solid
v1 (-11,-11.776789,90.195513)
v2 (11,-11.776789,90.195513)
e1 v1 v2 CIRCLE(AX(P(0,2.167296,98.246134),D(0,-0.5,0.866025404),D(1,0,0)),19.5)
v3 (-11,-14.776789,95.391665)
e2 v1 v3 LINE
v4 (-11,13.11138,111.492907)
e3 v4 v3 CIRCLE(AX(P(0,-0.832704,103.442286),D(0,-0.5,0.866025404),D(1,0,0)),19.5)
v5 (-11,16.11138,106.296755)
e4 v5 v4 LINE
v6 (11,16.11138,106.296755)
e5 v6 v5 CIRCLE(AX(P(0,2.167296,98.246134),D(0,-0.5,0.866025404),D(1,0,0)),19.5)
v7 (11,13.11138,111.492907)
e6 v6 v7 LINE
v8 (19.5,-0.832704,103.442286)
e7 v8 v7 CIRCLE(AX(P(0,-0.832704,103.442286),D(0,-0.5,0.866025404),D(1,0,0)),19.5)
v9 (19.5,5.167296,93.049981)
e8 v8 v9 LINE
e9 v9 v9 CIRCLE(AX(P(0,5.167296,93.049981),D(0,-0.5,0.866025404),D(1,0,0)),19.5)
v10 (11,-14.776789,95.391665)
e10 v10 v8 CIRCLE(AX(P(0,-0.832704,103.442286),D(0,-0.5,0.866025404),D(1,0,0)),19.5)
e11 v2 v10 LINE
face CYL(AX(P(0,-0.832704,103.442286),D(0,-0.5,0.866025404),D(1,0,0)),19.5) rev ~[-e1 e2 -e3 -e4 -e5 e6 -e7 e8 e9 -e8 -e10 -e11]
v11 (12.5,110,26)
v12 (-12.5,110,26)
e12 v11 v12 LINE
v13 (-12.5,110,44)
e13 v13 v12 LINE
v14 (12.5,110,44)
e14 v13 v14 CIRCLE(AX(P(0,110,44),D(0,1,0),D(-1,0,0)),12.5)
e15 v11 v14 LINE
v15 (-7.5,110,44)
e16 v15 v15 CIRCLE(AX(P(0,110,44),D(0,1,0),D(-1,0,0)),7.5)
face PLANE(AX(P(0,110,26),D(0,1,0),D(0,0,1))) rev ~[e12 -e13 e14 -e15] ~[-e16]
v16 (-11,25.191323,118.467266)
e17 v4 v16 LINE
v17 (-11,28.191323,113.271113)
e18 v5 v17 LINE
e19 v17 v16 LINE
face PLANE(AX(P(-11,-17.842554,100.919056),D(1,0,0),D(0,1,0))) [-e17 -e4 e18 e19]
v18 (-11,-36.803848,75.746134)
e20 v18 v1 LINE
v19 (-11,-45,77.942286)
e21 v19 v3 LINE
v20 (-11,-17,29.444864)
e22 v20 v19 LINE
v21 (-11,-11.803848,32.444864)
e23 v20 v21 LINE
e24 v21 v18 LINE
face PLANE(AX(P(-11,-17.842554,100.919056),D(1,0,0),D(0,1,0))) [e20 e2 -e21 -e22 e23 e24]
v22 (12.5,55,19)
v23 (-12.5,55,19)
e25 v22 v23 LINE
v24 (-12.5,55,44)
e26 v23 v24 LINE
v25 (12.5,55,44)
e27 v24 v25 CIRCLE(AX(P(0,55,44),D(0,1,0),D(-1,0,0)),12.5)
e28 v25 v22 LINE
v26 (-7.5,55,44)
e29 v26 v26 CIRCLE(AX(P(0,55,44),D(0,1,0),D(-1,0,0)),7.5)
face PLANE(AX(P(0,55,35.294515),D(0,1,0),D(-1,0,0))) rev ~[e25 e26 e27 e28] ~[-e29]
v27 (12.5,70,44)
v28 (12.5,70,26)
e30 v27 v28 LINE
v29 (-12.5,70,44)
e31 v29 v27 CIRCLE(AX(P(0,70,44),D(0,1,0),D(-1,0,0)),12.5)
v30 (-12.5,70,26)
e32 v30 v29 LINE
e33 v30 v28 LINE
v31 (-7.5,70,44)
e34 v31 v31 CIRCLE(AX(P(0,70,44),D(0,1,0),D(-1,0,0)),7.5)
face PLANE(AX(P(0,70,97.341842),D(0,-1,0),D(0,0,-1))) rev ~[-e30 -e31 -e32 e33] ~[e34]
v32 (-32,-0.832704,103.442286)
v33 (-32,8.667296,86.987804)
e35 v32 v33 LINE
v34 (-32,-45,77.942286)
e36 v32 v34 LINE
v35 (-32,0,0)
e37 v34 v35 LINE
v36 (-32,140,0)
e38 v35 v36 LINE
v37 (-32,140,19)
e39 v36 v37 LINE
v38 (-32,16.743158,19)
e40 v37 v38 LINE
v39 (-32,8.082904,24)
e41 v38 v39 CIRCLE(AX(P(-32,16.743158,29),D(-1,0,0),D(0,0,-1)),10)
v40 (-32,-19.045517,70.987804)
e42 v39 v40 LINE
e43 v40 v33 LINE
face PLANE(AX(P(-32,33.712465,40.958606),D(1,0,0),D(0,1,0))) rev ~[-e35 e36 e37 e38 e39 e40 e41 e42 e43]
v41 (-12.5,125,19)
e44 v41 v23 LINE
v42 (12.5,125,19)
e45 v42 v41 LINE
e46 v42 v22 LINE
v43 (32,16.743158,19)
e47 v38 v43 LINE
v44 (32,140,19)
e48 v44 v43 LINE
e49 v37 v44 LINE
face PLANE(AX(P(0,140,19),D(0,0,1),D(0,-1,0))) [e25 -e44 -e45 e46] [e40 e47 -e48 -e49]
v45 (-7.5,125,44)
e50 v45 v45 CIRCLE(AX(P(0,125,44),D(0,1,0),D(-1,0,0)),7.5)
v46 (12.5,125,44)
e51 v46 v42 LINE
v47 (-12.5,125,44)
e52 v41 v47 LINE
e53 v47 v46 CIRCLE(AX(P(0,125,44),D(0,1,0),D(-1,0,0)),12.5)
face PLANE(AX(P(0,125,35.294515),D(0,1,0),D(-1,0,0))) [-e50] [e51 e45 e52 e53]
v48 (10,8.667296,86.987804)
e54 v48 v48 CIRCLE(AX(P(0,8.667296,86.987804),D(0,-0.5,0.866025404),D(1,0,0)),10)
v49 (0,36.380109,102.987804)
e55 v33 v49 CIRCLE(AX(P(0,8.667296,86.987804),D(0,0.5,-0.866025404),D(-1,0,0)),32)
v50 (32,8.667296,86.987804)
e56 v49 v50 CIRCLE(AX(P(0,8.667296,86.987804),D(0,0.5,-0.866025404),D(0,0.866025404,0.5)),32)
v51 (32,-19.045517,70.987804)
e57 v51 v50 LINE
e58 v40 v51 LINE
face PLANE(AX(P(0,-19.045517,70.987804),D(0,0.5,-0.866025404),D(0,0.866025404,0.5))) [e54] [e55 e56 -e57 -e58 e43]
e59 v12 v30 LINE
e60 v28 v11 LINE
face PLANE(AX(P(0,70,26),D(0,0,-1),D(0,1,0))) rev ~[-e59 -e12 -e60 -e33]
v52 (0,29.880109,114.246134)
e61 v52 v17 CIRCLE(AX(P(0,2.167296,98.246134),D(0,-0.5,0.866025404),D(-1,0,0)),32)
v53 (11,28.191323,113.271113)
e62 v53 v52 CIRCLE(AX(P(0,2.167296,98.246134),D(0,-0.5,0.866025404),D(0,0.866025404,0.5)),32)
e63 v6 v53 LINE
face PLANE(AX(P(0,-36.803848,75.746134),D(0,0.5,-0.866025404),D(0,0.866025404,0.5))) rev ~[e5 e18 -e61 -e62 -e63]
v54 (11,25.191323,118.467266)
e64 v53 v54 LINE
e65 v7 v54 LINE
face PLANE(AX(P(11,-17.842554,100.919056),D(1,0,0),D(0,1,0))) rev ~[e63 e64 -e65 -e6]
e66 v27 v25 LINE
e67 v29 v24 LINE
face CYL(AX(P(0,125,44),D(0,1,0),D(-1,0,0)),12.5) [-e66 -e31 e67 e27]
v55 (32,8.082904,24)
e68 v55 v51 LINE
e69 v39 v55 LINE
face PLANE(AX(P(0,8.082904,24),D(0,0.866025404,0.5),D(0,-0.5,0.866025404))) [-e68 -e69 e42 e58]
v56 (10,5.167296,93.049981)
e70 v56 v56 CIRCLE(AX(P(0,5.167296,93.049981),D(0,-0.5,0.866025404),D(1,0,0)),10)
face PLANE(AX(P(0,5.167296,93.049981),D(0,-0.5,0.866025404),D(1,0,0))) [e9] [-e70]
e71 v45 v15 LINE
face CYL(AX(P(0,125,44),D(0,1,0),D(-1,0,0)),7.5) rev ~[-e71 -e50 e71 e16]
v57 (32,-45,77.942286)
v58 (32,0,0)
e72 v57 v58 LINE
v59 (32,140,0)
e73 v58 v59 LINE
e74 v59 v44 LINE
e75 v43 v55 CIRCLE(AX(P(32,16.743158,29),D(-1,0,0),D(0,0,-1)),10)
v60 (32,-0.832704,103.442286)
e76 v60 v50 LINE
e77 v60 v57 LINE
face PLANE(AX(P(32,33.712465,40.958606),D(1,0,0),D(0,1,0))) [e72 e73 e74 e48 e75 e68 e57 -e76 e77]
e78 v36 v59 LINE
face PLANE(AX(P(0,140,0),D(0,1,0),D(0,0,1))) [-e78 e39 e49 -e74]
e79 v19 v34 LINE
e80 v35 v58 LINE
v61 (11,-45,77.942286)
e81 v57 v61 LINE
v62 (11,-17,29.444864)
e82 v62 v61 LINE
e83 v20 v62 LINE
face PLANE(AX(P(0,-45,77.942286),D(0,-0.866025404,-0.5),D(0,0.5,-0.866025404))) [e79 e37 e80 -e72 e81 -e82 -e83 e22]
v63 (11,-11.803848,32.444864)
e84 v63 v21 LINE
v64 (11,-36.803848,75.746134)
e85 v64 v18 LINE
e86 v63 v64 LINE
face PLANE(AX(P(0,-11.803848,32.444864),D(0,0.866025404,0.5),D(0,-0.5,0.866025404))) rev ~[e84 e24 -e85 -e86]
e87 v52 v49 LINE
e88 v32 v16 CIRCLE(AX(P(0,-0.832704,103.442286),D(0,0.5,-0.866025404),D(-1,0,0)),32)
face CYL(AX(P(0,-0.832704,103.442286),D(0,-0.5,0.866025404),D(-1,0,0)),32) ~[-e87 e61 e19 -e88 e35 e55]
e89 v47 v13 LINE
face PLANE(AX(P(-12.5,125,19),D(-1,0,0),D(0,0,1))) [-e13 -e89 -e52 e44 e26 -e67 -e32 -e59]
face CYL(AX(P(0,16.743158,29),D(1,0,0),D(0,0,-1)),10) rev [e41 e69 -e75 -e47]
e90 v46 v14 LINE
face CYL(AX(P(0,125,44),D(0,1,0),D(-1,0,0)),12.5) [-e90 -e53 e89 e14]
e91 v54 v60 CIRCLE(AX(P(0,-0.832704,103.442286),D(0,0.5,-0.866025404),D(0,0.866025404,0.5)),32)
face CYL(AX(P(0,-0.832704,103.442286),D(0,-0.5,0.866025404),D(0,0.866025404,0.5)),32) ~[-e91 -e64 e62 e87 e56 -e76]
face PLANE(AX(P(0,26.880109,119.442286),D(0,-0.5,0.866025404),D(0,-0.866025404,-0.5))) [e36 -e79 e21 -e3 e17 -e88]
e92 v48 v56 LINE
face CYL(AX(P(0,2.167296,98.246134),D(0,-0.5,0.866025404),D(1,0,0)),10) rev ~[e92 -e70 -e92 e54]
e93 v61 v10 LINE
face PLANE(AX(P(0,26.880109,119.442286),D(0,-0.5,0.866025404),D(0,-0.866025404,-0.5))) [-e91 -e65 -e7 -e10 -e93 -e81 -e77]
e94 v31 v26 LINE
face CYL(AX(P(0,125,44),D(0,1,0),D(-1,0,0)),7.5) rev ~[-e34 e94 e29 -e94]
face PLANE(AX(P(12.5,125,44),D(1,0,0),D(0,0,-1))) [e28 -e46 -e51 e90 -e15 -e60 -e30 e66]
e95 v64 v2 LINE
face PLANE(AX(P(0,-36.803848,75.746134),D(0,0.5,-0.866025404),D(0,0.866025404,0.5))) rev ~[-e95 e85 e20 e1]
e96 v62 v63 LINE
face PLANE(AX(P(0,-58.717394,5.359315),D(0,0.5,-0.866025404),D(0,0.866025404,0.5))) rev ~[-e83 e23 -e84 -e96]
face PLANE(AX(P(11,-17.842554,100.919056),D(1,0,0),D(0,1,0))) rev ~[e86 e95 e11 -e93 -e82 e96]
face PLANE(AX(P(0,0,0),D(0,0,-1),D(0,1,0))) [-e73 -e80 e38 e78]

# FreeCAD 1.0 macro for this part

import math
import FreeCAD as App
import Part
import Sketcher
from FreeCAD import Vector
Q = App.Units.Quantity

doc = App.newDocument("Part")
params = doc.addObject("Spreadsheet::Sheet", "Params")
for row, (alias, value) in enumerate([
    ("sketch1_radius", "10 mm"),
    ("sketch1_width", "140 mm"),
    ("sketch1_height", "19 mm"),
    ("sketch1_length", "90 mm"),
    ("sketch1_length2", "64 mm"),
    ("pad1_length", "64 mm"),
    ("sketch2_radius", "32 mm"),
    ("pocket1_length", "19 mm"),
    ("sketch3_length", "50 mm"),
    ("pocket2_length", "22 mm"),
    ("sketch4_diameter", "20 mm"),
    ("pocket3_length", "50 mm"),
    ("sketch5_diameter", "39 mm"),
    ("pocket4_length", "12 mm"),
    ("sketch6_diameter", "15 mm"),
    ("sketch6_radius", "12.5 mm"),
    ("pad2_length", "70 mm"),
    ("sketch7_width", "40 mm"),
    ("pocket5_length", "64 mm"),
], start=1):
    params.set(f"A{row}", alias)
    params.set(f"B{row}", "=" + value)
    params.setAlias(f"B{row}", alias)

body = doc.addObject("PartDesign::Body", "Body")

# Sketch on YZ plane
sketch1 = body.newObject("Sketcher::SketchObject", "Sketch")
sketch1.AttachmentSupport = (doc.getObject("YZ_Plane"), [""])
sketch1.MapMode = "FlatFace"
sketch1.addGeometry([
    Part.LineSegment(Vector(-45, 78, 0), Vector(0, 0, 0)),  # 0
    Part.LineSegment(Vector(0, 0, 0), Vector(140, 0, 0)),  # 1
    Part.LineSegment(Vector(140, 0, 0), Vector(140, 19, 0)),  # 2
    Part.LineSegment(Vector(140, 19, 0), Vector(17, 19, 0)),  # 3
    Part.ArcOfCircle(Part.Circle(Vector(17, 29, 0), Vector(0, 0, 1), 10), math.radians(-150), math.radians(-90)),  # 4
    Part.LineSegment(Vector(8, 24, 0), Vector(-19, 71, 0)),  # 5
    Part.LineSegment(Vector(-19, 71, 0), Vector(36, 103, 0)),  # 6
    Part.LineSegment(Vector(36, 103, 0), Vector(27, 119, 0)),  # 7
    Part.LineSegment(Vector(27, 119, 0), Vector(-45, 78, 0)),  # 8
], False)
sketch1.addConstraint([
    Sketcher.Constraint("Coincident", 0, 2, 1, 1),
    Sketcher.Constraint("Coincident", 1, 2, 2, 1),
    Sketcher.Constraint("Coincident", 2, 2, 3, 1),
    Sketcher.Constraint("Tangent", 3, 2, 4, 2),
    Sketcher.Constraint("Tangent", 4, 1, 5, 1),
    Sketcher.Constraint("Coincident", 5, 2, 6, 1),
    Sketcher.Constraint("Coincident", 6, 2, 7, 1),
    Sketcher.Constraint("Coincident", 7, 2, 8, 1),
    Sketcher.Constraint("Coincident", 8, 2, 0, 1),
    Sketcher.Constraint("Horizontal", 1),
    Sketcher.Constraint("Vertical", 2),
    Sketcher.Constraint("Horizontal", 3),
    Sketcher.Constraint("Coincident", 0, 2, -1, 1),
    Sketcher.Constraint("Parallel", 0, 5),
    Sketcher.Constraint("Perpendicular", 5, 6),
    Sketcher.Constraint("Perpendicular", 6, 7),
    Sketcher.Constraint("Perpendicular", 7, 8),
    Sketcher.Constraint("Radius", 4, 10.0),
    Sketcher.Constraint("DistanceX", 1, 1, 1, 2, 140.0),
    Sketcher.Constraint("DistanceY", 2, 1, 2, 2, 19.0),
    Sketcher.Constraint("Angle", 0, Q("-60 deg")),
    Sketcher.Constraint("Distance", 0, 90.0),
    Sketcher.Constraint("Distance", 6, 64.0),
    Sketcher.Constraint("Distance", 7, 19.0),
    Sketcher.Constraint("Distance", 8, 83.0),
])
sketch1.setExpression("Constraints[17]", "Params.sketch1_radius")
sketch1.setExpression("Constraints[18]", "Params.sketch1_width")
sketch1.setExpression("Constraints[19]", "Params.sketch1_height")
sketch1.setExpression("Constraints[21]", "Params.sketch1_length")
sketch1.setExpression("Constraints[22]", "Params.sketch1_length2")
pad1 = body.newObject("PartDesign::Pad", "Pad")
pad1.Profile = sketch1
pad1.setExpression("Length", "Params.pad1_length")
pad1.Midplane = True

# Sketch on an angled plane
sketch2 = body.newObject("Sketcher::SketchObject", "Sketch001")
sketch2.Placement = App.Placement(Vector(0, -45, 77.942286), App.Rotation(Vector(1, 0, 0), Vector(0, 0.866025404, 0.5), Vector(0, -0.5, 0.866025404), "ZXY"))
sketch2.addGeometry([
    Part.ArcOfCircle(Part.Circle(Vector(0, 51, 0), Vector(0, 0, 1), 32), math.radians(0), math.radians(90)),  # 0
    Part.LineSegment(Vector(32, 51, 0), Vector(106, 51, 0)),  # 1
    Part.LineSegment(Vector(106, 51, 0), Vector(106, 125, 0)),  # 2
    Part.LineSegment(Vector(106, 125, 0), Vector(-106, 125, 0)),  # 3
    Part.LineSegment(Vector(-106, 125, 0), Vector(-106, 51, 0)),  # 4
    Part.LineSegment(Vector(-106, 51, 0), Vector(-32, 51, 0)),  # 5
    Part.ArcOfCircle(Part.Circle(Vector(0, 51, 0), Vector(0, 0, 1), 32), math.radians(90), math.radians(180)),  # 6
], False)
sketch2.addConstraint([
    Sketcher.Constraint("Coincident", 0, 1, 1, 1),
    Sketcher.Constraint("Coincident", 1, 2, 2, 1),
    Sketcher.Constraint("Coincident", 2, 2, 3, 1),
    Sketcher.Constraint("Coincident", 3, 2, 4, 1),
    Sketcher.Constraint("Coincident", 4, 2, 5, 1),
    Sketcher.Constraint("Coincident", 5, 2, 6, 2),
    Sketcher.Constraint("Tangent", 6, 1, 0, 2),
    Sketcher.Constraint("Horizontal", 1),
    Sketcher.Constraint("Vertical", 2),
    Sketcher.Constraint("Horizontal", 3),
    Sketcher.Constraint("Vertical", 4),
    Sketcher.Constraint("Horizontal", 5),
    Sketcher.Constraint("Equal", 0, 6),
    Sketcher.Constraint("Symmetric", 1, 2, 4, 2, -2),
    Sketcher.Constraint("PointOnObject", 0, 3, -2),
    Sketcher.Constraint("PointOnObject", 6, 1, -2),
    Sketcher.Constraint("Horizontal", 6, 3, 0, 1),
    Sketcher.Constraint("Equal", 5, 2),
    Sketcher.Constraint("Radius", 0, 32.0),
    Sketcher.Constraint("DistanceY", -1, 1, 0, 3, 51.0),
    Sketcher.Constraint("DistanceX", 1, 1, 1, 2, 74.266191),
])
sketch2.setExpression("Constraints[18]", "Params.sketch2_radius")
pocket1 = body.newObject("PartDesign::Pocket", "Pocket")
pocket1.Profile = sketch2
pocket1.setExpression("Length", "Params.pocket1_length")

# Sketch on YZ plane
sketch3 = body.newObject("Sketcher::SketchObject", "Sketch002")
sketch3.AttachmentSupport = (doc.getObject("YZ_Plane"), [""])
sketch3.MapMode = "FlatFace"
sketch3.addGeometry([
    Part.LineSegment(Vector(-37, 76, 0), Vector(81, 143, 0)),  # 0
    Part.LineSegment(Vector(81, 143, 0), Vector(55, 188, 0)),  # 1
    Part.LineSegment(Vector(55, 188, 0), Vector(-109, 93, 0)),  # 2
    Part.LineSegment(Vector(-109, 93, 0), Vector(-59, 5, 0)),  # 3
    Part.LineSegment(Vector(-59, 5, 0), Vector(-12, 32, 0)),  # 4
    Part.LineSegment(Vector(-12, 32, 0), Vector(-37, 76, 0)),  # 5
], False)
sketch3.addConstraint([
    Sketcher.Constraint("Coincident", 0, 2, 1, 1),
    Sketcher.Constraint("Coincident", 1, 2, 2, 1),
    Sketcher.Constraint("Coincident", 2, 2, 3, 1),
    Sketcher.Constraint("Coincident", 3, 2, 4, 1),
    Sketcher.Constraint("Coincident", 4, 2, 5, 1),
    Sketcher.Constraint("Coincident", 5, 2, 0, 1),
    Sketcher.Constraint("Perpendicular", 0, 1),
    Sketcher.Constraint("Perpendicular", 1, 2),
    Sketcher.Constraint("Perpendicular", 2, 3),
    Sketcher.Constraint("Perpendicular", 3, 4),
    Sketcher.Constraint("Perpendicular", 4, 5),
    Sketcher.Constraint("Angle", 0, Q("30 deg")),
    Sketcher.Constraint("Distance", 5, 50.0),
    Sketcher.Constraint("DistanceY", -1, 1, 1, 2, 187.959399),
    Sketcher.Constraint("DistanceY", 4, 2, 2, 2, 60.698301),
    Sketcher.Constraint("Distance", 0, 135.461371),
    Sketcher.Constraint("Distance", 1, 51.364059),
    Sketcher.Constraint("DistanceX", -1, 1, 0, 2, 80.509141),
])
sketch3.setExpression("Constraints[12]", "Params.sketch3_length")
pocket2 = body.newObject("PartDesign::Pocket", "Pocket001")
pocket2.Profile = sketch3
pocket2.setExpression("Length", "Params.pocket2_length")
pocket2.Midplane = True

# Sketch on an angled plane
sketch4 = body.newObject("Sketcher::SketchObject", "Sketch003")
sketch4.Placement = App.Placement(Vector(0, -42, 72.746134), App.Rotation(Vector(1, 0, 0), Vector(0, 0.866025404, 0.5), Vector(0, -0.5, 0.866025404), "ZXY"))
sketch4.addGeometry(Part.Circle(Vector(0, 51, 0), Vector(0, 0, 1), 10), False)
sketch4.addConstraint([
    Sketcher.Constraint("PointOnObject", 0, 3, -2),
    Sketcher.Constraint("Diameter", 0, 20.0),
    Sketcher.Constraint("DistanceY", -1, 1, 0, 3, 51.0),
])
sketch4.setExpression("Constraints[1]", "Params.sketch4_diameter")
pocket3 = body.newObject("PartDesign::Pocket", "Pocket002")
pocket3.Profile = sketch4
pocket3.setExpression("Length", "Params.pocket3_length")
pocket3.Midplane = True

# Sketch on an angled plane
sketch5 = body.newObject("Sketcher::SketchObject", "Sketch004")
sketch5.Placement = App.Placement(Vector(0, -45, 77.942286), App.Rotation(Vector(1, 0, 0), Vector(0, 0.866025404, 0.5), Vector(0, -0.5, 0.866025404), "ZXY"))
sketch5.addGeometry(Part.Circle(Vector(0, 51, 0), Vector(0, 0, 1), 20), False)
sketch5.addConstraint([
    Sketcher.Constraint("PointOnObject", 0, 3, -2),
    Sketcher.Constraint("Diameter", 0, 39.0),
    Sketcher.Constraint("DistanceY", -1, 1, 0, 3, 51.0),
])
sketch5.setExpression("Constraints[1]", "Params.sketch5_diameter")
pocket4 = body.newObject("PartDesign::Pocket", "Pocket003")
pocket4.Profile = sketch5
pocket4.setExpression("Length", "Params.pocket4_length")

# Sketch on XZ plane
sketch6 = body.newObject("Sketcher::SketchObject", "Sketch005")
sketch6.AttachmentSupport = (doc.getObject("XZ_Plane"), [""])
sketch6.MapMode = "FlatFace"
sketch6.AttachmentOffset = App.Placement(Vector(0, 0, -125), App.Rotation())
sketch6.addGeometry([
    Part.LineSegment(Vector(12, 44, 0), Vector(12, 19, 0)),  # 0
    Part.LineSegment(Vector(12, 19, 0), Vector(-12, 19, 0)),  # 1
    Part.LineSegment(Vector(-12, 19, 0), Vector(-12, 44, 0)),  # 2
    Part.ArcOfCircle(Part.Circle(Vector(0, 44, 0), Vector(0, 0, 1), 12), math.radians(0), math.radians(180)),  # 3
    Part.Circle(Vector(0, 44, 0), Vector(0, 0, 1), 8),  # 4
], False)
sketch6.addConstraint([
    Sketcher.Constraint("Coincident", 0, 2, 1, 1),
    Sketcher.Constraint("Coincident", 1, 2, 2, 1),
    Sketcher.Constraint("Tangent", 2, 2, 3, 2),
    Sketcher.Constraint("Tangent", 3, 1, 0, 1),
    Sketcher.Constraint("Vertical", 0),
    Sketcher.Constraint("Horizontal", 1),
    Sketcher.Constraint("Vertical", 2),
    Sketcher.Constraint("Coincident", 4, 3, 3, 3),
    Sketcher.Constraint("PointOnObject", 3, 3, -2),
    Sketcher.Constraint("Equal", 1, 0),
    Sketcher.Constraint("Diameter", 4, 15.0),
    Sketcher.Constraint("Radius", 3, 12.5),
    Sketcher.Constraint("DistanceY", -1, 1, 3, 3, 44.0),
])
sketch6.setExpression("Constraints[10]", "Params.sketch6_diameter")
sketch6.setExpression("Constraints[11]", "Params.sketch6_radius")
pad2 = body.newObject("PartDesign::Pad", "Pad001")
pad2.Profile = sketch6
pad2.setExpression("Length", "Params.pad2_length")

# Sketch on YZ plane
sketch7 = body.newObject("Sketcher::SketchObject", "Sketch006")
sketch7.AttachmentSupport = (doc.getObject("YZ_Plane"), [""])
sketch7.MapMode = "FlatFace"
sketch7.addGeometry([
    Part.LineSegment(Vector(110, 97, 0), Vector(70, 97, 0)),
    Part.LineSegment(Vector(70, 97, 0), Vector(70, 26, 0)),
    Part.LineSegment(Vector(70, 26, 0), Vector(110, 26, 0)),
    Part.LineSegment(Vector(110, 26, 0), Vector(110, 97, 0)),
], False)
sketch7.addConstraint([
    Sketcher.Constraint("Coincident", 0, 2, 1, 1),
    Sketcher.Constraint("Coincident", 1, 2, 2, 1),
    Sketcher.Constraint("Coincident", 2, 2, 3, 1),
    Sketcher.Constraint("Coincident", 3, 2, 0, 1),
    Sketcher.Constraint("Horizontal", 0),
    Sketcher.Constraint("Vertical", 1),
    Sketcher.Constraint("Horizontal", 2),
    Sketcher.Constraint("Vertical", 3),
    Sketcher.Constraint("DistanceX", 0, 2, 0, 1, 40.0),
    Sketcher.Constraint("DistanceX", -1, 1, 0, 2, 70.0),
    Sketcher.Constraint("DistanceY", -1, 1, 1, 2, 26.0),
    Sketcher.Constraint("DistanceY", 1, 2, 1, 1, 71.341842),
])
sketch7.setExpression("Constraints[8]", "Params.sketch7_width")
pocket5 = body.newObject("PartDesign::Pocket", "Pocket004")
pocket5.Profile = sketch7
pocket5.setExpression("Length", "Params.pocket5_length")
pocket5.Midplane = True

doc.recompute()
